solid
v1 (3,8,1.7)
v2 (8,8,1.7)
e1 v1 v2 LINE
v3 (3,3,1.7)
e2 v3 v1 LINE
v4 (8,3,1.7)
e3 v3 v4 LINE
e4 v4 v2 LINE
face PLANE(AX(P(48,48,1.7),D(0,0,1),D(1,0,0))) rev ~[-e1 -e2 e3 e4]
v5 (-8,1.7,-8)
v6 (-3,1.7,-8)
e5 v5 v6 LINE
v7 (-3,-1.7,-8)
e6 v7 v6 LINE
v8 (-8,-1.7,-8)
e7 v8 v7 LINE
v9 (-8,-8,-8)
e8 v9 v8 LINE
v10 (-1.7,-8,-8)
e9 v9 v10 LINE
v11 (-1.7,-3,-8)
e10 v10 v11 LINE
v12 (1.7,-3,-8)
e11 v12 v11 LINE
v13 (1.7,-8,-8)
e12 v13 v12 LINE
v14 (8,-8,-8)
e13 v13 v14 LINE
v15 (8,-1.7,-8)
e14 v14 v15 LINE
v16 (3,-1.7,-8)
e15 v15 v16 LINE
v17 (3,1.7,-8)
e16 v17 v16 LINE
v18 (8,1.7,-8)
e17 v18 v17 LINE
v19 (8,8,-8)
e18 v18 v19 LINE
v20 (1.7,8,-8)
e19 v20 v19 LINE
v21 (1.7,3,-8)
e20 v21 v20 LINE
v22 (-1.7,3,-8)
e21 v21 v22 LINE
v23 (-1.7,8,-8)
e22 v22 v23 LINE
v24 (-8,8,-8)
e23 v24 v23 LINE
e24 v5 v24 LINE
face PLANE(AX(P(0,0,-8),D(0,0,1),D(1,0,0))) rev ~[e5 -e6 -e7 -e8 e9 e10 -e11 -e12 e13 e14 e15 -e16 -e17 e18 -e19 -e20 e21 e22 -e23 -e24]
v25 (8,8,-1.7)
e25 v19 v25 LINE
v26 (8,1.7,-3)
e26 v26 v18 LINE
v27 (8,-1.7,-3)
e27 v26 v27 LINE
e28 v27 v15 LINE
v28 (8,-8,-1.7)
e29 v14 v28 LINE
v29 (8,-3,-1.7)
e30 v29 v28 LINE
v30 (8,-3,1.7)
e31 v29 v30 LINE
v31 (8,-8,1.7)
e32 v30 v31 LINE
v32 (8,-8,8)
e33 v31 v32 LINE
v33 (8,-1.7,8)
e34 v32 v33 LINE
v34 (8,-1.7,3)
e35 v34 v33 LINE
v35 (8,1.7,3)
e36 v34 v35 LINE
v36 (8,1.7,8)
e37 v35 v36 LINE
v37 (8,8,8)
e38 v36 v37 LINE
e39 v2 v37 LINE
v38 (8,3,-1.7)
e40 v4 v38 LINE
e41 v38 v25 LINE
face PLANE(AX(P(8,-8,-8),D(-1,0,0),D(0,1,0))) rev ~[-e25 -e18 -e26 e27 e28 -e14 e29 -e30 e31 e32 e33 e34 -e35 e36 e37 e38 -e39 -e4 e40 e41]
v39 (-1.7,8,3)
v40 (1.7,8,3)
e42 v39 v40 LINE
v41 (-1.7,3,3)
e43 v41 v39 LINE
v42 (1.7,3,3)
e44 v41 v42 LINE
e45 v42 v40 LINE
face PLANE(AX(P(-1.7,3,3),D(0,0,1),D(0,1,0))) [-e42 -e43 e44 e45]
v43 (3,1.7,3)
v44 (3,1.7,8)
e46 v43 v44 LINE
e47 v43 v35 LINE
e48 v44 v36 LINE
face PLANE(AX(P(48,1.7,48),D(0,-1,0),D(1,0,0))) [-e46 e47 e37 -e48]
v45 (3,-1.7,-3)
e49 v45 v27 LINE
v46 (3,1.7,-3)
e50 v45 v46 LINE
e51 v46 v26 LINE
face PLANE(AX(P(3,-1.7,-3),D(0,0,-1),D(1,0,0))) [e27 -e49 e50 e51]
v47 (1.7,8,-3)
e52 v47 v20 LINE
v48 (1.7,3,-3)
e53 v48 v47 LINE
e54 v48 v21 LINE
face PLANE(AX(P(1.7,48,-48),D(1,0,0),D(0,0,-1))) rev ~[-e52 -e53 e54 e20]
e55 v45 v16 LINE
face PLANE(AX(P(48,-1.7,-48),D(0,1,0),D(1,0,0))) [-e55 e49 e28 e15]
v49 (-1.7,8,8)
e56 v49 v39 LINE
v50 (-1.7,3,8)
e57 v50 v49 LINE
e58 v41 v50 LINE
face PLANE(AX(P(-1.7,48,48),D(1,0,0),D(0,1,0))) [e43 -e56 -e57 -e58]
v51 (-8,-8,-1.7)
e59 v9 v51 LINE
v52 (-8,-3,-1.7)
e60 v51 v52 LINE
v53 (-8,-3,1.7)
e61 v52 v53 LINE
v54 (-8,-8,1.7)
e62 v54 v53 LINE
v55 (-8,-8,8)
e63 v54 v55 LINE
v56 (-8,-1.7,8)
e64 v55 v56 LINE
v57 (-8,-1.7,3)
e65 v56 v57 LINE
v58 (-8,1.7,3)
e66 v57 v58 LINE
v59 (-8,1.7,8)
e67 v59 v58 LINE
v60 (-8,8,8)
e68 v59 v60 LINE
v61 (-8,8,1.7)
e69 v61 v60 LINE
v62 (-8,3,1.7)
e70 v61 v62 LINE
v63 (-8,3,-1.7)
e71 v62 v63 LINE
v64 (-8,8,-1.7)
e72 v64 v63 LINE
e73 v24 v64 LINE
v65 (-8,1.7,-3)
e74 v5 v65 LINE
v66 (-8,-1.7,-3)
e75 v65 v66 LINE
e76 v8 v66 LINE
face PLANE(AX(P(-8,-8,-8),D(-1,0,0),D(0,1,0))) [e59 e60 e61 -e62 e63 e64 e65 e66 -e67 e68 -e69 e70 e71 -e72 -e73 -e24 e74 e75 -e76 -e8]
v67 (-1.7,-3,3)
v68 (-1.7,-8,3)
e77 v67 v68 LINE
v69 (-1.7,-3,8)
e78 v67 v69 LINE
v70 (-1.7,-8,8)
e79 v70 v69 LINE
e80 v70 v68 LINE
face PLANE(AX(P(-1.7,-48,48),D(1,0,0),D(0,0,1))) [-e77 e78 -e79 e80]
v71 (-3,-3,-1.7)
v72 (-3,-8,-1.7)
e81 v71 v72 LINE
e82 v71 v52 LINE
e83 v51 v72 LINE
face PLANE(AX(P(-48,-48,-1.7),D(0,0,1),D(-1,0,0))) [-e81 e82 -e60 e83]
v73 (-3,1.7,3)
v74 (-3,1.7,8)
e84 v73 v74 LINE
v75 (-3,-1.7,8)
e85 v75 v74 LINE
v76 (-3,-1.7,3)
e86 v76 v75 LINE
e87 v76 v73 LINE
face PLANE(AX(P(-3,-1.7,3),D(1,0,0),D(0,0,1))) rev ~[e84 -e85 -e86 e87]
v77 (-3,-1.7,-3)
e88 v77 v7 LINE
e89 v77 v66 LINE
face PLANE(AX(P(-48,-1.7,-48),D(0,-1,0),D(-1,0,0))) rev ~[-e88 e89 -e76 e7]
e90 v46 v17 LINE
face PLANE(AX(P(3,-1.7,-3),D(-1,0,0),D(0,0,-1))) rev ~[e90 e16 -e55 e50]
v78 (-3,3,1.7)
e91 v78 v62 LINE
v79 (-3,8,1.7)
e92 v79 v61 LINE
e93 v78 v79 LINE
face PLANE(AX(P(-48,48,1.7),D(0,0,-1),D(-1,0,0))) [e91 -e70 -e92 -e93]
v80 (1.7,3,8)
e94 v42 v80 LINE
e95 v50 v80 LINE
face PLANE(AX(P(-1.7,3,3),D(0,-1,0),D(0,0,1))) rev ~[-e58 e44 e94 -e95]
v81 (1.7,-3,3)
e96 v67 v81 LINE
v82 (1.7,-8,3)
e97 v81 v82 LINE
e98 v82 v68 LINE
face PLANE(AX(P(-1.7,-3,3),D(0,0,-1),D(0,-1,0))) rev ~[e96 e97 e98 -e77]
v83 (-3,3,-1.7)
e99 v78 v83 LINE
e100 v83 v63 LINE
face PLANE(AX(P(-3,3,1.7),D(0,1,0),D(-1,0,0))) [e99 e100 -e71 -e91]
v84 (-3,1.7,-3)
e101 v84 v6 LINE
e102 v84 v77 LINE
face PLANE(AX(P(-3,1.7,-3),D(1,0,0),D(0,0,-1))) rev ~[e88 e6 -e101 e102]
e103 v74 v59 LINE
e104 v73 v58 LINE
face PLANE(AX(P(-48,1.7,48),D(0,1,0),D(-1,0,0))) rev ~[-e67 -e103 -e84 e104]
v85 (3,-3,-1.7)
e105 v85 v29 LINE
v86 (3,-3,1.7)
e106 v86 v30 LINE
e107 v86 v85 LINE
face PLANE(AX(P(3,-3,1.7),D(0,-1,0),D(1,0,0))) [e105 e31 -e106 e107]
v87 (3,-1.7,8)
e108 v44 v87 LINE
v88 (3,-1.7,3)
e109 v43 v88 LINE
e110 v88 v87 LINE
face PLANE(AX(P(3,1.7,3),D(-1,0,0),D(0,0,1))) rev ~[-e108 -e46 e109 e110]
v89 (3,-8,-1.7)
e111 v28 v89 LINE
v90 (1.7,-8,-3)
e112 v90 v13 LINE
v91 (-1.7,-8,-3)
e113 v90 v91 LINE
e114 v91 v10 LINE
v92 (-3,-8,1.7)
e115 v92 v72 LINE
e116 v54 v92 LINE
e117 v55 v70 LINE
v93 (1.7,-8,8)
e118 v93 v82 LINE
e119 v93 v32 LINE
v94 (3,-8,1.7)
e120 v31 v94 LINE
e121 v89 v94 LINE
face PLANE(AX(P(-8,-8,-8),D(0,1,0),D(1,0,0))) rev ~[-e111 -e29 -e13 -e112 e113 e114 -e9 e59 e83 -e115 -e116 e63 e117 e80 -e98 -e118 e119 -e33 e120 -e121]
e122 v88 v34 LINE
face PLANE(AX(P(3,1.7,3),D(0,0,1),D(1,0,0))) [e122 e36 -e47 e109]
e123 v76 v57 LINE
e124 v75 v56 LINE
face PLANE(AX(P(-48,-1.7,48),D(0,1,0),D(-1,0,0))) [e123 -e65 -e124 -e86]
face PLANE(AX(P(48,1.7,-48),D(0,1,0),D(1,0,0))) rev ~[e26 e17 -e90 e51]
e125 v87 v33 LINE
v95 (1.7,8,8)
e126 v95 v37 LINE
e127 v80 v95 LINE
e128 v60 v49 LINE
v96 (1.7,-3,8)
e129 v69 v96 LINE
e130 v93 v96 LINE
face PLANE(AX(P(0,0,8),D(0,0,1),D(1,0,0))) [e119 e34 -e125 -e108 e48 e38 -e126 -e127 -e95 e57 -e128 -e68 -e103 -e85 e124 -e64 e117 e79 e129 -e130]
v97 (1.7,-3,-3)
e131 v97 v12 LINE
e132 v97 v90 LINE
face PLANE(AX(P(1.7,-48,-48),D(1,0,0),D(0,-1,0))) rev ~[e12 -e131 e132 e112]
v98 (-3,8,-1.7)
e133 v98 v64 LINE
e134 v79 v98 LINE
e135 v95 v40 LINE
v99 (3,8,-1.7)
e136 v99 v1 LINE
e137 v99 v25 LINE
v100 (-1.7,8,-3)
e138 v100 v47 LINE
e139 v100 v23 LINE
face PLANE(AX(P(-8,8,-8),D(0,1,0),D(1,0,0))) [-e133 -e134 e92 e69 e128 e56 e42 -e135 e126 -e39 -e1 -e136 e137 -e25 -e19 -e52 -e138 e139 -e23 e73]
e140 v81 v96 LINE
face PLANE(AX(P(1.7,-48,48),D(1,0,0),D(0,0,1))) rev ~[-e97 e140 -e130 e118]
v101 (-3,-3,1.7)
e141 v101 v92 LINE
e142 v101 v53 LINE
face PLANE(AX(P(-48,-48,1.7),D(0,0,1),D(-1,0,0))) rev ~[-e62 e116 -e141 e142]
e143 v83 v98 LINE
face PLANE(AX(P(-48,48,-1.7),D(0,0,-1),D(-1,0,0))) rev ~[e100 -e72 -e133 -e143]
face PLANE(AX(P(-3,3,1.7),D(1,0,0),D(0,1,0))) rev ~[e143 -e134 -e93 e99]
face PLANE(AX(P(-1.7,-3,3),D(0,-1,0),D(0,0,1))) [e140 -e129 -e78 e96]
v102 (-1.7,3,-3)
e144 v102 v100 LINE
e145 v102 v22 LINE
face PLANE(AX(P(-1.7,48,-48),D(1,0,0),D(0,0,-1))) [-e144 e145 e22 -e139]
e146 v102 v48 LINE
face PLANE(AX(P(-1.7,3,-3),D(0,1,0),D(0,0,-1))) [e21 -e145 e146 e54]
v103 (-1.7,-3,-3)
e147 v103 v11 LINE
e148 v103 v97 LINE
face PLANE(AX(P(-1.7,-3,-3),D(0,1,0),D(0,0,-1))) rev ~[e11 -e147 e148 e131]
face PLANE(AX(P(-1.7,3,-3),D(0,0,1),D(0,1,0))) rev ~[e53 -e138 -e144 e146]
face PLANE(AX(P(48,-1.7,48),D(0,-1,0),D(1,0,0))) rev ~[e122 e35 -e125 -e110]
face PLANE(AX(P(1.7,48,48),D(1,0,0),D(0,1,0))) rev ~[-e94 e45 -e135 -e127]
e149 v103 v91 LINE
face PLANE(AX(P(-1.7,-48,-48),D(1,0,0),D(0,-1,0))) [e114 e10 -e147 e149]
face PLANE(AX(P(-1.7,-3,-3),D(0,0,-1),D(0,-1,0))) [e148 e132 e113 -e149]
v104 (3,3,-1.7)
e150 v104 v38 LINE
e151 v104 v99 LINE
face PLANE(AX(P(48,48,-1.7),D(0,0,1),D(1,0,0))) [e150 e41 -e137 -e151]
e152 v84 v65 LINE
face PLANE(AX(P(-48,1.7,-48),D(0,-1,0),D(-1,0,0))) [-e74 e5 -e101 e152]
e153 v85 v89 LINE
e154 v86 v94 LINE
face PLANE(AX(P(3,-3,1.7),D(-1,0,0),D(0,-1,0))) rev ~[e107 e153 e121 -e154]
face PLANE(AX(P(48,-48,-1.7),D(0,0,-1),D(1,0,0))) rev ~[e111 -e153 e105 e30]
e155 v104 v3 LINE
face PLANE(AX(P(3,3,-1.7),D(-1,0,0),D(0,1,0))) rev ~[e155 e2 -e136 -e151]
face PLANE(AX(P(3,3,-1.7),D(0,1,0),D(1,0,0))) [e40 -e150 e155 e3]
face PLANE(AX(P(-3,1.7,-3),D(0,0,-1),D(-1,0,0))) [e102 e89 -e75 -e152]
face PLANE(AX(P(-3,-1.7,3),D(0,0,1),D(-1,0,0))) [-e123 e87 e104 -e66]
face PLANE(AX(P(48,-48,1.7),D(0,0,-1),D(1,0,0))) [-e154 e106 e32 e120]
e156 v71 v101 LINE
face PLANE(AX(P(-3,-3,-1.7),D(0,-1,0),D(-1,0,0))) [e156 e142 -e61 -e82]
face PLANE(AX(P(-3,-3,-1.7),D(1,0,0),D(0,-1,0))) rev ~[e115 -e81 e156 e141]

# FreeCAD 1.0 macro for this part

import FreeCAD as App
import Part
import Sketcher
Q = App.Units.Quantity

doc = App.newDocument("Part")
body = doc.addObject("PartDesign::Body", "Body")

# Sketch on XY plane
sketch1 = body.newObject("Sketcher::SketchObject", "Sketch")
sketch1.AttachmentSupport = (doc.getObject("XY_Plane"), [""])
sketch1.MapMode = "FlatFace"
sketch1.AttachmentOffset = App.Placement(App.Vector(0, 0, -1.7), App.Rotation())
sketch1.addGeometry([
    Part.LineSegment(App.Vector(3, 93, 0), App.Vector(3, 3, 0)),
    Part.LineSegment(App.Vector(3, 3, 0), App.Vector(93, 3, 0)),
    Part.LineSegment(App.Vector(93, 3, 0), App.Vector(93, 93, 0)),
    Part.LineSegment(App.Vector(93, 93, 0), App.Vector(3, 93, 0)),
], False)
sketch1.addConstraint([
    Sketcher.Constraint("Coincident", 0, 2, 1, 1),
    Sketcher.Constraint("Coincident", 1, 2, 2, 1),
    Sketcher.Constraint("Coincident", 2, 2, 3, 1),
    Sketcher.Constraint("Coincident", 3, 2, 0, 1),
    Sketcher.Constraint("Vertical", 0),
    Sketcher.Constraint("Horizontal", 1),
    Sketcher.Constraint("Vertical", 2),
    Sketcher.Constraint("Horizontal", 3),
    Sketcher.Constraint("Equal", 3, 0),
    Sketcher.Constraint("DistanceX", 1, 1, 1, 2, Q("90 mm")),
    Sketcher.Constraint("DistanceX", -1, 1, 0, 2, Q("3 mm")),
    Sketcher.Constraint("DistanceY", -1, 1, 0, 2, Q("3 mm")),
])
pad1 = body.newObject("PartDesign::Pad", "Pad")
pad1.Profile = sketch1
pad1.Length = 3.4
body2 = doc.addObject("PartDesign::Body", "Body001")
body2.AllowCompound = True
doc.recompute()

body2.BaseFeature = body
doc.recompute()

body3 = doc.addObject("PartDesign::Body", "Body002")
body3.BaseFeature = body
body3.Placement = App.Placement(App.Vector(0, 0, 0), App.Rotation(App.Vector(0, 1, 0), 90))
boolean = body2.newObject("PartDesign::Boolean", "Boolean")
boolean.Type = "Fuse"
boolean.addObjects([body3])
doc.recompute()

body.Placement = App.Placement(App.Vector(0, 0, 0), App.Rotation(App.Vector(0, 1, 0), 180))
boolean2 = body2.newObject("PartDesign::Boolean", "Boolean001")
boolean2.Type = "Fuse"
boolean2.addObjects([body])
body4 = doc.addObject("PartDesign::Body", "Body003")
body4.AllowCompound = True
doc.recompute()

body4.BaseFeature = body2
doc.recompute()

body5 = doc.addObject("PartDesign::Body", "Body004")
body5.BaseFeature = body2
body5.Placement = App.Placement(App.Vector(0, 0, 0), App.Rotation(App.Vector(1, 0, 0), 90))
boolean3 = body4.newObject("PartDesign::Boolean", "Boolean002")
boolean3.Type = "Fuse"
boolean3.addObjects([body5])
doc.recompute()

body6 = doc.addObject("PartDesign::Body", "Body005")
body6.BaseFeature = body2
body6.Placement = App.Placement(App.Vector(0, 0, 0), App.Rotation(App.Vector(1, 0, 0), 180))
boolean4 = body4.newObject("PartDesign::Boolean", "Boolean003")
boolean4.Type = "Fuse"
boolean4.addObjects([body6])
doc.recompute()

body2.Placement = App.Placement(App.Vector(0, 0, 0), App.Rotation(App.Vector(1, 0, 0), 270))
boolean5 = body4.newObject("PartDesign::Boolean", "Boolean004")
boolean5.Type = "Fuse"
boolean5.addObjects([body2])
body7 = doc.addObject("PartDesign::Body", "Body006")

# Sketch on XY plane
sketch2 = body7.newObject("Sketcher::SketchObject", "Sketch001")
sketch2.AttachmentSupport = (doc.getObject("XY_Plane006"), [""])
sketch2.MapMode = "FlatFace"
sketch2.AttachmentOffset = App.Placement(App.Vector(0, 0, -8), App.Rotation())
sketch2.addGeometry([
    Part.LineSegment(App.Vector(-8, 8, 0), App.Vector(-8, -8, 0)),
    Part.LineSegment(App.Vector(-8, -8, 0), App.Vector(8, -8, 0)),
    Part.LineSegment(App.Vector(8, -8, 0), App.Vector(8, 8, 0)),
    Part.LineSegment(App.Vector(8, 8, 0), App.Vector(-8, 8, 0)),
], False)
sketch2.addConstraint([
    Sketcher.Constraint("Coincident", 0, 2, 1, 1),
    Sketcher.Constraint("Coincident", 1, 2, 2, 1),
    Sketcher.Constraint("Coincident", 2, 2, 3, 1),
    Sketcher.Constraint("Coincident", 3, 2, 0, 1),
    Sketcher.Constraint("Vertical", 0),
    Sketcher.Constraint("Horizontal", 1),
    Sketcher.Constraint("Vertical", 2),
    Sketcher.Constraint("Horizontal", 3),
    Sketcher.Constraint("Symmetric", 0, 2, 2, 2, -1, 1),
    Sketcher.Constraint("Equal", 3, 0),
    Sketcher.Constraint("DistanceX", 1, 1, 1, 2, Q("16 mm")),
])
pad2 = body7.newObject("PartDesign::Pad", "Pad001")
pad2.Profile = sketch2
pad2.Length = 16
doc.recompute()

boolean6 = body7.newObject("PartDesign::Boolean", "Boolean005")
boolean6.Type = "Cut"
boolean6.addObjects([body4])

doc.recompute()
